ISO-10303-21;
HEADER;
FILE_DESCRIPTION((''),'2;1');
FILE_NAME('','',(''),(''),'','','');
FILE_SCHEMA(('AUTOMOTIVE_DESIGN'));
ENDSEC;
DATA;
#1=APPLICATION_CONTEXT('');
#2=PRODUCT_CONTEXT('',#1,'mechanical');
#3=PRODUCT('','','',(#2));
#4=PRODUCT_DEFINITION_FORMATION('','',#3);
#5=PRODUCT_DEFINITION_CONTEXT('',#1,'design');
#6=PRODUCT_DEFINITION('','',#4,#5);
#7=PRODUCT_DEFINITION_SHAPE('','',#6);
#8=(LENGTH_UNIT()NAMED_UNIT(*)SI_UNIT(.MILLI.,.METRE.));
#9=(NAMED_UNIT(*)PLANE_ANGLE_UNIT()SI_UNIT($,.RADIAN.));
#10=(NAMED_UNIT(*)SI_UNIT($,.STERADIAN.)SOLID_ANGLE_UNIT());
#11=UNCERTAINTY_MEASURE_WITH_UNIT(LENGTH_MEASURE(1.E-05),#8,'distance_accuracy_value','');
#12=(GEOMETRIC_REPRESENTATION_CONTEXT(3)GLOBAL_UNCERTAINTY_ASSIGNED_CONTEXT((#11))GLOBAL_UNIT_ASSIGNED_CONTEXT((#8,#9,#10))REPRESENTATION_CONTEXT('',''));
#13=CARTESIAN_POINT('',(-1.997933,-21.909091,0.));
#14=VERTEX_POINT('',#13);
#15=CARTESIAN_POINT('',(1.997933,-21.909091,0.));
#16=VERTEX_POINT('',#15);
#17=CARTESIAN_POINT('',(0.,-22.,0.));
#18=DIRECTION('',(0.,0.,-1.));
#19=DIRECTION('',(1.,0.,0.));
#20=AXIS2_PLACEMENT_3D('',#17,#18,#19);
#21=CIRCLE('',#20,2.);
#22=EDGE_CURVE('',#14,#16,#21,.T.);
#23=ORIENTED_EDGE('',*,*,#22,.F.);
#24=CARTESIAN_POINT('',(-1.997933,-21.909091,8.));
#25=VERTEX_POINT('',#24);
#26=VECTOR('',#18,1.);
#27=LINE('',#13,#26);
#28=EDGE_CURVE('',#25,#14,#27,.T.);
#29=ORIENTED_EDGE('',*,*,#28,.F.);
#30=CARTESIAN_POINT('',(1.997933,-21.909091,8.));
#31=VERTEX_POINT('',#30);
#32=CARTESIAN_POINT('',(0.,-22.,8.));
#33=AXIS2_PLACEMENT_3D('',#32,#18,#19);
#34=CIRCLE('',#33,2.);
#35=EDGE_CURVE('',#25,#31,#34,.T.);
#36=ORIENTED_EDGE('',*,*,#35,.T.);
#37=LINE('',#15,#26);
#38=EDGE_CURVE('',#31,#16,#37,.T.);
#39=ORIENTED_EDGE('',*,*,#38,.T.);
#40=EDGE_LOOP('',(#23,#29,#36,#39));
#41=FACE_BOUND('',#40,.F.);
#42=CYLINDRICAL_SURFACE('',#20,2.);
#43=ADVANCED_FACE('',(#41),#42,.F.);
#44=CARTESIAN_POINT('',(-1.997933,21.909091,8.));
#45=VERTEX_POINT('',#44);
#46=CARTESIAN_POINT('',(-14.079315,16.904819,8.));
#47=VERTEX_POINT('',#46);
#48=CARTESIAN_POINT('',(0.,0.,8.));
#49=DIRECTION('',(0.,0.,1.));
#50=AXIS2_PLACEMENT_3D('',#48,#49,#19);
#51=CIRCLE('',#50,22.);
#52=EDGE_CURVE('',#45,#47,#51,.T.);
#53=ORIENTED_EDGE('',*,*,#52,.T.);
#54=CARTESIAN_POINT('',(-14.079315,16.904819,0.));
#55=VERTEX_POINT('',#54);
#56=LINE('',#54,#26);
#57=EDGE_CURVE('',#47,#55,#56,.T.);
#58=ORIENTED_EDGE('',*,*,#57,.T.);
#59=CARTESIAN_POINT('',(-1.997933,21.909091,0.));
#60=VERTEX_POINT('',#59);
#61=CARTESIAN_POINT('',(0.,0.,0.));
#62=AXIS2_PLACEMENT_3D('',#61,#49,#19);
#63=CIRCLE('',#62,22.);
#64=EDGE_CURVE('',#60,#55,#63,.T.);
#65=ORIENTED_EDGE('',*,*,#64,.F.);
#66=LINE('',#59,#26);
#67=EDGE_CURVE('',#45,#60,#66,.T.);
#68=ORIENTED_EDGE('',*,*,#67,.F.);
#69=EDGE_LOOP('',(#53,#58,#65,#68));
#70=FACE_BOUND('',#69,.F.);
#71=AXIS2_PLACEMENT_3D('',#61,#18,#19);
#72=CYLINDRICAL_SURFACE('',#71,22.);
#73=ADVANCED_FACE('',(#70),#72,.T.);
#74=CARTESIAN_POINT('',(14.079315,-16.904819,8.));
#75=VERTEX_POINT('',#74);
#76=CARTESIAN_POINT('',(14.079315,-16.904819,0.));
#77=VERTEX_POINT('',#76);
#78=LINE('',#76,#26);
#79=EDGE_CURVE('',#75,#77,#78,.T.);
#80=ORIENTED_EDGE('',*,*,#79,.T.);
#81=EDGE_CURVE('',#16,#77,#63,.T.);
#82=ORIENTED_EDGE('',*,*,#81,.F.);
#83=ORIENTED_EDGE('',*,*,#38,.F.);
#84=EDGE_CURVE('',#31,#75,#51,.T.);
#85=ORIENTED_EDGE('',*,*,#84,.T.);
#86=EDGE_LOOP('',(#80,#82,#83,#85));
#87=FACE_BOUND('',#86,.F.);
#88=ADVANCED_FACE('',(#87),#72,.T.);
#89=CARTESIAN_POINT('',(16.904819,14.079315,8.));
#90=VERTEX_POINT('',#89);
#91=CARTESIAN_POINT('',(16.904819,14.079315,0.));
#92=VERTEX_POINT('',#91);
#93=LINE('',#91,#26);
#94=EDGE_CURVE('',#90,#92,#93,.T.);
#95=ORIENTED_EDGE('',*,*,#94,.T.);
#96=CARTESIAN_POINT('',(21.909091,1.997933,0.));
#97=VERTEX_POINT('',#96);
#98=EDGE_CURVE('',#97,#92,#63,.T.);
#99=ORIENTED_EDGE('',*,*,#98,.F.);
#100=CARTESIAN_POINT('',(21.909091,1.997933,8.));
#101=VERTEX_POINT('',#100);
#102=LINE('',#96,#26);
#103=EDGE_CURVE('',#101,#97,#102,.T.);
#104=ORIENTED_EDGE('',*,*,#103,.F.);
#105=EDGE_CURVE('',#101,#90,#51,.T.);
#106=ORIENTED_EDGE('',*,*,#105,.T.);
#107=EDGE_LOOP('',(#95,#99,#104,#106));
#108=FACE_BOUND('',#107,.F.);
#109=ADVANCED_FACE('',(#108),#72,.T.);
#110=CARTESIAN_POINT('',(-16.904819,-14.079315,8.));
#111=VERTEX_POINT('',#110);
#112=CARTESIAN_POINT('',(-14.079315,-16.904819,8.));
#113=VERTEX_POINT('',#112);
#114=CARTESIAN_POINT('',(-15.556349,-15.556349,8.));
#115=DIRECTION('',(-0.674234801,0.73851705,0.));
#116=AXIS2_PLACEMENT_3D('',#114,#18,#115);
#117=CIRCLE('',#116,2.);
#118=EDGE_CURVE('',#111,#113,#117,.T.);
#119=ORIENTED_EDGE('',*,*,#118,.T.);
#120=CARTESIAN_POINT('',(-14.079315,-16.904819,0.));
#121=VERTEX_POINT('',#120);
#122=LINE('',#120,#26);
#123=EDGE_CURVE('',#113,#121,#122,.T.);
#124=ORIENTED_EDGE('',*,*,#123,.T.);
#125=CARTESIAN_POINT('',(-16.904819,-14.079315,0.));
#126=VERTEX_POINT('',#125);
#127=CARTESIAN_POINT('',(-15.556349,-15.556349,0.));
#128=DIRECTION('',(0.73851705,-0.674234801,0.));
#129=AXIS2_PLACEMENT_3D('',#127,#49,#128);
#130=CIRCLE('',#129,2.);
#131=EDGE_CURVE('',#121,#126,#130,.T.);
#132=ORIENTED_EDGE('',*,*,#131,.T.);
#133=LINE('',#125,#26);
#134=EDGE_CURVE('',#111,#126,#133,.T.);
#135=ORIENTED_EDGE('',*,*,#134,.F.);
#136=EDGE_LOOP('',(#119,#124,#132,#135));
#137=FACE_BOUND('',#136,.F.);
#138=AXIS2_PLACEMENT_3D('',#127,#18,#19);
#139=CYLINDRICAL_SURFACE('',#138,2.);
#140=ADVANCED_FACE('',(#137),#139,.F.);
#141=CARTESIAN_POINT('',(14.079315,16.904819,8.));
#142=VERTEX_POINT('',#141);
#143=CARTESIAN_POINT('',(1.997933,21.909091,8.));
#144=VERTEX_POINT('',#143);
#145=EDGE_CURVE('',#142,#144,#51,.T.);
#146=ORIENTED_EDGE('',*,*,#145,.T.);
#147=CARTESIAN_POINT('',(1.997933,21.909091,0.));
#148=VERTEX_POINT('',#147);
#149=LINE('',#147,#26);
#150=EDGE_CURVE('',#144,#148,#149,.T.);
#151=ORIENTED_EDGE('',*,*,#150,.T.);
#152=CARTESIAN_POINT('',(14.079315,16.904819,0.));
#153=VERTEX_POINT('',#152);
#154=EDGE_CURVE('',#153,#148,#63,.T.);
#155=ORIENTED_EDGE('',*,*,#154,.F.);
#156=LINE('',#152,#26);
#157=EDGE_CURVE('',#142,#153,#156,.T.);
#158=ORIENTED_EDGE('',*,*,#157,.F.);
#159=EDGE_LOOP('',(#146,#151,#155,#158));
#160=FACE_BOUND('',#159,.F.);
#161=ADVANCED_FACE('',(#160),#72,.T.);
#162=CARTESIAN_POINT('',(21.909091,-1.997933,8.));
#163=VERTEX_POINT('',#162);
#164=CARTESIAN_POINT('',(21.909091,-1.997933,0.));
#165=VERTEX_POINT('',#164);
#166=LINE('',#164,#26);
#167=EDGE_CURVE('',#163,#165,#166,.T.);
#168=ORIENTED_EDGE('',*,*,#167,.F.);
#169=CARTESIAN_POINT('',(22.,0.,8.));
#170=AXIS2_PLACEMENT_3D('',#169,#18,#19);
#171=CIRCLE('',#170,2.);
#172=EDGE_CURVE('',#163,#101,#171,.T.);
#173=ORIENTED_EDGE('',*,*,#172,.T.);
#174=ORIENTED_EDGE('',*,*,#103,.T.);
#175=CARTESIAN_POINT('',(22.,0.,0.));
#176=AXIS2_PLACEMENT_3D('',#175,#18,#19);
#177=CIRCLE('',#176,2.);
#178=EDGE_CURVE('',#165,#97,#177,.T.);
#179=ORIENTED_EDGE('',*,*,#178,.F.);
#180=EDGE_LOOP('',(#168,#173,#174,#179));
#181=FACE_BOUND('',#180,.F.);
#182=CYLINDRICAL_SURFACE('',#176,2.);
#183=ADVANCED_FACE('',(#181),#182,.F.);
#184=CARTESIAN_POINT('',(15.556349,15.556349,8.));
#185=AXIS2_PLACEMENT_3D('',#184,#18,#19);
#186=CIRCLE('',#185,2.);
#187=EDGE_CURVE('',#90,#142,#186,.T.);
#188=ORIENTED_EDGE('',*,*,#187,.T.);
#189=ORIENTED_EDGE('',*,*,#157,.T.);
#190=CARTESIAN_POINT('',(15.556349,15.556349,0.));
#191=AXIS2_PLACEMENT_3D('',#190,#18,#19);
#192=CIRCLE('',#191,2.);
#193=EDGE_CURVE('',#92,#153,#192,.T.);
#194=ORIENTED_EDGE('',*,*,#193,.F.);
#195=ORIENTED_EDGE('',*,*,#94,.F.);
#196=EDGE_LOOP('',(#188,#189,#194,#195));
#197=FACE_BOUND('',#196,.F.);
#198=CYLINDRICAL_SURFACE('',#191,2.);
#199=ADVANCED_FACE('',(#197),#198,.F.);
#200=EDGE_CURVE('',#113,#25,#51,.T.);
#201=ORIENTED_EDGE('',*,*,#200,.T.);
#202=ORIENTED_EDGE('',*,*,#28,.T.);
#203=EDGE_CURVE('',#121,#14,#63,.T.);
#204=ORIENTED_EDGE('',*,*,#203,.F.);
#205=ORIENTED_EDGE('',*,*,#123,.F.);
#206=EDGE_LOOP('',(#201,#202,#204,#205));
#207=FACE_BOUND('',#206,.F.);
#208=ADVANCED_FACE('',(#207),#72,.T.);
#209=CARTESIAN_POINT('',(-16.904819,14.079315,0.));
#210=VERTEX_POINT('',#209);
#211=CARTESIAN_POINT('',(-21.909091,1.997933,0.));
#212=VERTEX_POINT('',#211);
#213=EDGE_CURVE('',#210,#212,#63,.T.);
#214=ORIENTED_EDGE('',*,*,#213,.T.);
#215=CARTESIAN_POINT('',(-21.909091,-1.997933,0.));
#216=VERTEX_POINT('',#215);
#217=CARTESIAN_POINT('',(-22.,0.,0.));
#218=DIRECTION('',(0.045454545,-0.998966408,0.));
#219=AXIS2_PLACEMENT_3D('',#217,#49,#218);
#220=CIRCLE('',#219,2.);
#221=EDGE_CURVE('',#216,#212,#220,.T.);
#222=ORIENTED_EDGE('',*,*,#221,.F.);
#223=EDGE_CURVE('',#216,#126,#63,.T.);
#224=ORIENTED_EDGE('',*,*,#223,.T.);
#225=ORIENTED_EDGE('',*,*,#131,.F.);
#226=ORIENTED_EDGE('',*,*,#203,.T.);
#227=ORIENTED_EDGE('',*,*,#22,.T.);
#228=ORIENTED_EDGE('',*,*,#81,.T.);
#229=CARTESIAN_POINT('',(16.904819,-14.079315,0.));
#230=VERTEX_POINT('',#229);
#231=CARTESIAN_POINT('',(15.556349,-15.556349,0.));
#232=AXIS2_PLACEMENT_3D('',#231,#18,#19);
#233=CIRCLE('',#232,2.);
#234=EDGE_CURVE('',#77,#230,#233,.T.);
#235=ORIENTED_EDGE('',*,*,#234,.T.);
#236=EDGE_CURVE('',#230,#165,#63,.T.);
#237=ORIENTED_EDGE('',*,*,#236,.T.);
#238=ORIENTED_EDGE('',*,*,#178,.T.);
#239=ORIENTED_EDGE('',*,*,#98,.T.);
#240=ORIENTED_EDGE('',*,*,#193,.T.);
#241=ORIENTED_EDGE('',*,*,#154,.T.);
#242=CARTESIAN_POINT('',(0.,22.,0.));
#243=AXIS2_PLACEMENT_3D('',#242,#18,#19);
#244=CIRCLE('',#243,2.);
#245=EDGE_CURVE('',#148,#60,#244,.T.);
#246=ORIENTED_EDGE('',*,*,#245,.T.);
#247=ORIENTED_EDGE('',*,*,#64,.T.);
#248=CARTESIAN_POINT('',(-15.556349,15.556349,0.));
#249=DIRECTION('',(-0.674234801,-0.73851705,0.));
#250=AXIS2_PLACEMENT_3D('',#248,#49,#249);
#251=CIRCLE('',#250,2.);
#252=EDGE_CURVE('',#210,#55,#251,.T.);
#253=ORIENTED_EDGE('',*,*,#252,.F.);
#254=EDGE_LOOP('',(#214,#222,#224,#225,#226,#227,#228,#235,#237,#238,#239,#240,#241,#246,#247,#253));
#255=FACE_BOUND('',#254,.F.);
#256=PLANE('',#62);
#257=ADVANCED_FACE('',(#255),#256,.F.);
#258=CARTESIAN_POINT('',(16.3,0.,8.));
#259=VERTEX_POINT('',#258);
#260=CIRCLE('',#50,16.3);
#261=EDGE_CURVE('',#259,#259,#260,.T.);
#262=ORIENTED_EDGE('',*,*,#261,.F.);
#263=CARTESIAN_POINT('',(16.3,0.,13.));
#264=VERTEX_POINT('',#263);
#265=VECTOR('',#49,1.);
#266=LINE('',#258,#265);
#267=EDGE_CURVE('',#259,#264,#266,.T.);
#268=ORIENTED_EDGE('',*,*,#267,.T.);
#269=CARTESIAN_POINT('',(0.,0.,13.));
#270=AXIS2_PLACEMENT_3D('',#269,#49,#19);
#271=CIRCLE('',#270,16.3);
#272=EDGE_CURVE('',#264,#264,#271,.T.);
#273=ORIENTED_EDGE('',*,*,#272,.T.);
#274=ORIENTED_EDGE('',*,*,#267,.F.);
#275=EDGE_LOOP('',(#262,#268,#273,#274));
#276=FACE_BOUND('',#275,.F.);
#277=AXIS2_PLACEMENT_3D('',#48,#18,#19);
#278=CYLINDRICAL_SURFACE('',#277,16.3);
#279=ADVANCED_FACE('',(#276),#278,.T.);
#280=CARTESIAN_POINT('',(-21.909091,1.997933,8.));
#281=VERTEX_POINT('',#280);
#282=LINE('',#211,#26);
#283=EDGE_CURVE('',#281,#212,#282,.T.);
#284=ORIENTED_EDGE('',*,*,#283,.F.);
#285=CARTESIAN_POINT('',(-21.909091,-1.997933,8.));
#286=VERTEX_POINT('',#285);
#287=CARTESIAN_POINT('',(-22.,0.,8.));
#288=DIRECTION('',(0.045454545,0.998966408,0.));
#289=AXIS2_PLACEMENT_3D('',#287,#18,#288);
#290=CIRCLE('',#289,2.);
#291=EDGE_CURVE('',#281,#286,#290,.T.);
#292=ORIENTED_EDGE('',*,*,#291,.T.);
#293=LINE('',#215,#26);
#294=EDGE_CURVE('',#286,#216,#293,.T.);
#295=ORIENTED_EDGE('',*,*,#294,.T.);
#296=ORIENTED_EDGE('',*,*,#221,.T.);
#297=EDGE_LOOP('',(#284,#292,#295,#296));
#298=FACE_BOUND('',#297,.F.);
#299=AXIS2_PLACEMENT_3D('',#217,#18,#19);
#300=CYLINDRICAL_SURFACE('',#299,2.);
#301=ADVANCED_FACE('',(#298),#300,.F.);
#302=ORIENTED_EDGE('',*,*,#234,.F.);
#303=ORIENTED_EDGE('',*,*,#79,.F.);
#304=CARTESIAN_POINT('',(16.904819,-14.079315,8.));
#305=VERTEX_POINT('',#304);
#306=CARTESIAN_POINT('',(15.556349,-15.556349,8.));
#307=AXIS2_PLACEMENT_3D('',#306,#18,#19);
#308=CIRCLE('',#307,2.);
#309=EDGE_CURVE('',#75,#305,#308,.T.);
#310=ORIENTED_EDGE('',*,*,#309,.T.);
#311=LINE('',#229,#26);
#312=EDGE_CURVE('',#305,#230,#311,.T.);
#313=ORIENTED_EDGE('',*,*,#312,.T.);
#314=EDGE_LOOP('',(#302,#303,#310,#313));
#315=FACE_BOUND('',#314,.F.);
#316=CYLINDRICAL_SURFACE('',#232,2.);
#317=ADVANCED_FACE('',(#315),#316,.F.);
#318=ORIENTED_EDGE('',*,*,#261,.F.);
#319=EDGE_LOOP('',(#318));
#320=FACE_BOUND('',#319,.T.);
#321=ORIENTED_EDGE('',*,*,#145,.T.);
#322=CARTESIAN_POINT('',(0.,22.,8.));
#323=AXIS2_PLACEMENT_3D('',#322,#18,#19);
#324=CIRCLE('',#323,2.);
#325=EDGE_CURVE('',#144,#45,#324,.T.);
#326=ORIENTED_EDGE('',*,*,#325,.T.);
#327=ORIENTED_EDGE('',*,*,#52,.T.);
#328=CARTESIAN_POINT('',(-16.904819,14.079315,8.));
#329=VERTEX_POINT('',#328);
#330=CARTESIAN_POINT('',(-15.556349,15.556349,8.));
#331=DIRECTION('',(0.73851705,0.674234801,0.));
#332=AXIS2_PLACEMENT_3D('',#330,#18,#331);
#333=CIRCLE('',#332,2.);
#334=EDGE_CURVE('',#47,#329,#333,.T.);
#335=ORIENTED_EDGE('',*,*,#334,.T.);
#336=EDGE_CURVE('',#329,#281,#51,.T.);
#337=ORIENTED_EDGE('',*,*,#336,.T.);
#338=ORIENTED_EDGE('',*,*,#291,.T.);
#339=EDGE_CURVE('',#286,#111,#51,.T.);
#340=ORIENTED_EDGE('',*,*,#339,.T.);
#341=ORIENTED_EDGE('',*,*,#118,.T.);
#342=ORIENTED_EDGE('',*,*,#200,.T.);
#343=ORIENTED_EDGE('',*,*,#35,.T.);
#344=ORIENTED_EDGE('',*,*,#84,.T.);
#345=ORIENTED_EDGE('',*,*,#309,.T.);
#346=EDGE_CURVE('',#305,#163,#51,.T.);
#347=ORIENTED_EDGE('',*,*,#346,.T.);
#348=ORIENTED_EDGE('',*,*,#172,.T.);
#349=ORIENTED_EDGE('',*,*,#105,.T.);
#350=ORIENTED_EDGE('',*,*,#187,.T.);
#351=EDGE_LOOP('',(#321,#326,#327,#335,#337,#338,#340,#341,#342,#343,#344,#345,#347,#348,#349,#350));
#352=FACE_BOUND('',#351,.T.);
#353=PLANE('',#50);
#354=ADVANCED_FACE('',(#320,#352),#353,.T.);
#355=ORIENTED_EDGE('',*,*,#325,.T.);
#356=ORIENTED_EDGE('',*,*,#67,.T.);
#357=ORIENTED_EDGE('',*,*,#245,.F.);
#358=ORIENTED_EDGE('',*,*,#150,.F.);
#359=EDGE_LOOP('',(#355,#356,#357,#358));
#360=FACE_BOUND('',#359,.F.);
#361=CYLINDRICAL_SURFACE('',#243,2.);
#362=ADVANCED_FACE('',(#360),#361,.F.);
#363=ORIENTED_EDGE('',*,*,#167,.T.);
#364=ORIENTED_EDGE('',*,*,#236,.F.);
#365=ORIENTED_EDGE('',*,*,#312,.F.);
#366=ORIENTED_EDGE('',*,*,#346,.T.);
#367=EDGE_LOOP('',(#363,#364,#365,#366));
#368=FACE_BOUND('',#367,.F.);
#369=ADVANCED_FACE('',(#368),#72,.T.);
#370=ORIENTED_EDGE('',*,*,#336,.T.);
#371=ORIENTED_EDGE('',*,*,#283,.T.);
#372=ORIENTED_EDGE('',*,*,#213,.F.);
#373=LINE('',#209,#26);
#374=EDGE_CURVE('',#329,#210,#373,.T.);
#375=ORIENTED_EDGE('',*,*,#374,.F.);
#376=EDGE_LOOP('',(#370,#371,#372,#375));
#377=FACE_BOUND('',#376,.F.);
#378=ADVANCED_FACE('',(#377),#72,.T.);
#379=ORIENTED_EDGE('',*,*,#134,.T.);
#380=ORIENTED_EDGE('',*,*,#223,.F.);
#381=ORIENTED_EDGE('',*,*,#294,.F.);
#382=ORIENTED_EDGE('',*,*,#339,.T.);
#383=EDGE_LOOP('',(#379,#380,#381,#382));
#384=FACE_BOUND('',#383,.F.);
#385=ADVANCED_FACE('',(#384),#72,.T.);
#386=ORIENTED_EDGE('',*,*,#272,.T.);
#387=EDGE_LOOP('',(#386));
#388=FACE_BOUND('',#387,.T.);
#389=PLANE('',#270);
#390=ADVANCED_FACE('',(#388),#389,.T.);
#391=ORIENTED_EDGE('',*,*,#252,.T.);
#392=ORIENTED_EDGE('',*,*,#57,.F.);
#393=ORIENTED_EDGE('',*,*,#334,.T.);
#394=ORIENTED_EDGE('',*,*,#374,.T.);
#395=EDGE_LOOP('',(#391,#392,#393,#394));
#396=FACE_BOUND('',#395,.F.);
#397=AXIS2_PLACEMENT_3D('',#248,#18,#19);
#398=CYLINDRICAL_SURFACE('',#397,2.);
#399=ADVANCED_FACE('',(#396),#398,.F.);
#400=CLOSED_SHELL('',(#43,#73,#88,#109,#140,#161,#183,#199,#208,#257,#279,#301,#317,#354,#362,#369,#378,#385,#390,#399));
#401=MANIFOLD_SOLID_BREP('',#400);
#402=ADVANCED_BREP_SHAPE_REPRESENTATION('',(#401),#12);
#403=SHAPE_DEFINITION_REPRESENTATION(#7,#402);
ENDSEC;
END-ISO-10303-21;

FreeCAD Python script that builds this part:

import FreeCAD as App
import Part
import Sketcher

V = App.Vector

doc = App.newDocument("Part")
body = doc.addObject("PartDesign::Body", "Body")

sketch1 = doc.addObject("Sketcher::SketchObject", "Sketch")
body.addObject(sketch1)
sketch1.AttachmentSupport = (doc.XY_Plane, [""])
sketch1.MapMode = "FlatFace"
sketch1.addGeometry(Part.Circle(V(0, 0, 0), V(0, 0, 1), 22), False)
sketch1.addConstraint(Sketcher.Constraint("Coincident", 0, 3, -1, 1))
sketch1.addConstraint(Sketcher.Constraint("Diameter", 0, 44.0))
pad1 = doc.addObject("PartDesign::Pad", "Pad")
body.addObject(pad1)
pad1.Profile = sketch1
pad1.Length = 8

sketch2 = doc.addObject("Sketcher::SketchObject", "Sketch001")
body.addObject(sketch2)
sketch2.AttachmentSupport = (doc.XY_Plane, [""])
sketch2.MapMode = "FlatFace"
sketch2.AttachmentOffset = App.Placement(V(0, 0, 8), App.Rotation())
sketch2.addGeometry(Part.Circle(V(0, 0, 0), V(0, 0, 1), 16.3), False)
sketch2.addConstraint(Sketcher.Constraint("Coincident", 0, 3, -1, 1))
sketch2.addConstraint(Sketcher.Constraint("Diameter", 0, 32.6))
pad2 = doc.addObject("PartDesign::Pad", "Pad001")
body.addObject(pad2)
pad2.Profile = sketch2
pad2.Length = 5

sketch3 = doc.addObject("Sketcher::SketchObject", "Sketch002")
body.addObject(sketch3)
sketch3.AttachmentSupport = (doc.XY_Plane, [""])
sketch3.MapMode = "FlatFace"
sketch3.addGeometry(Part.Circle(V(22, 0, 0), V(0, 0, 1), 2), False)
sketch3.addGeometry(Part.Circle(V(15.556349, 15.556349, 0), V(0, 0, 1), 2), False)
sketch3.addGeometry(Part.Circle(V(0, 22, 0), V(0, 0, 1), 2), False)
sketch3.addGeometry(Part.Circle(V(-15.556349, 15.556349, 0), V(0, 0, 1), 2), False)
sketch3.addGeometry(Part.Circle(V(-22, 0, 0), V(0, 0, 1), 2), False)
sketch3.addGeometry(Part.Circle(V(-15.556349, -15.556349, 0), V(0, 0, 1), 2), False)
sketch3.addGeometry(Part.Circle(V(0, -22, 0), V(0, 0, 1), 2), False)
sketch3.addGeometry(Part.Circle(V(15.556349, -15.556349, 0), V(0, 0, 1), 2), False)
sketch3.addConstraint(Sketcher.Constraint("Equal", 0, 1))
sketch3.addConstraint(Sketcher.Constraint("Equal", 1, 2))
sketch3.addConstraint(Sketcher.Constraint("Equal", 2, 3))
sketch3.addConstraint(Sketcher.Constraint("Equal", 3, 4))
sketch3.addConstraint(Sketcher.Constraint("Equal", 4, 5))
sketch3.addConstraint(Sketcher.Constraint("Equal", 5, 6))
sketch3.addConstraint(Sketcher.Constraint("Equal", 6, 7))
sketch3.addConstraint(Sketcher.Constraint("Symmetric", 0, 3, 4, 3, -1, 1))
sketch3.addConstraint(Sketcher.Constraint("Symmetric", 1, 3, 5, 3, -1, 1))
sketch3.addConstraint(Sketcher.Constraint("Symmetric", 2, 3, 6, 3, -1, 1))
sketch3.addConstraint(Sketcher.Constraint("Symmetric", 3, 3, 7, 3, -1, 1))
sketch3.addConstraint(Sketcher.Constraint("Symmetric", 1, 3, 3, 3, -2))
sketch3.addConstraint(Sketcher.Constraint("PointOnObject", 0, 3, -1))
sketch3.addConstraint(Sketcher.Constraint("PointOnObject", 2, 3, -2))
sketch3.addConstraint(Sketcher.Constraint("Diameter", 0, 4.0))
sketch3.addConstraint(Sketcher.Constraint("DistanceX", -1, 1, 0, 3, 22.0))
sketch3.addConstraint(Sketcher.Constraint("DistanceY", -1, 1, 2, 3, 22.0))
sketch3.addConstraint(Sketcher.Constraint("DistanceX", 3, 3, 1, 3, 31.112698))
sketch3.addConstraint(Sketcher.Constraint("DistanceY", 5, 3, 3, 3, 31.112698))
pocket1 = doc.addObject("PartDesign::Pocket", "Pocket")
body.addObject(pocket1)
pocket1.Profile = sketch3
pocket1.Length = 25
pocket1.Reversed = True

doc.recompute()
